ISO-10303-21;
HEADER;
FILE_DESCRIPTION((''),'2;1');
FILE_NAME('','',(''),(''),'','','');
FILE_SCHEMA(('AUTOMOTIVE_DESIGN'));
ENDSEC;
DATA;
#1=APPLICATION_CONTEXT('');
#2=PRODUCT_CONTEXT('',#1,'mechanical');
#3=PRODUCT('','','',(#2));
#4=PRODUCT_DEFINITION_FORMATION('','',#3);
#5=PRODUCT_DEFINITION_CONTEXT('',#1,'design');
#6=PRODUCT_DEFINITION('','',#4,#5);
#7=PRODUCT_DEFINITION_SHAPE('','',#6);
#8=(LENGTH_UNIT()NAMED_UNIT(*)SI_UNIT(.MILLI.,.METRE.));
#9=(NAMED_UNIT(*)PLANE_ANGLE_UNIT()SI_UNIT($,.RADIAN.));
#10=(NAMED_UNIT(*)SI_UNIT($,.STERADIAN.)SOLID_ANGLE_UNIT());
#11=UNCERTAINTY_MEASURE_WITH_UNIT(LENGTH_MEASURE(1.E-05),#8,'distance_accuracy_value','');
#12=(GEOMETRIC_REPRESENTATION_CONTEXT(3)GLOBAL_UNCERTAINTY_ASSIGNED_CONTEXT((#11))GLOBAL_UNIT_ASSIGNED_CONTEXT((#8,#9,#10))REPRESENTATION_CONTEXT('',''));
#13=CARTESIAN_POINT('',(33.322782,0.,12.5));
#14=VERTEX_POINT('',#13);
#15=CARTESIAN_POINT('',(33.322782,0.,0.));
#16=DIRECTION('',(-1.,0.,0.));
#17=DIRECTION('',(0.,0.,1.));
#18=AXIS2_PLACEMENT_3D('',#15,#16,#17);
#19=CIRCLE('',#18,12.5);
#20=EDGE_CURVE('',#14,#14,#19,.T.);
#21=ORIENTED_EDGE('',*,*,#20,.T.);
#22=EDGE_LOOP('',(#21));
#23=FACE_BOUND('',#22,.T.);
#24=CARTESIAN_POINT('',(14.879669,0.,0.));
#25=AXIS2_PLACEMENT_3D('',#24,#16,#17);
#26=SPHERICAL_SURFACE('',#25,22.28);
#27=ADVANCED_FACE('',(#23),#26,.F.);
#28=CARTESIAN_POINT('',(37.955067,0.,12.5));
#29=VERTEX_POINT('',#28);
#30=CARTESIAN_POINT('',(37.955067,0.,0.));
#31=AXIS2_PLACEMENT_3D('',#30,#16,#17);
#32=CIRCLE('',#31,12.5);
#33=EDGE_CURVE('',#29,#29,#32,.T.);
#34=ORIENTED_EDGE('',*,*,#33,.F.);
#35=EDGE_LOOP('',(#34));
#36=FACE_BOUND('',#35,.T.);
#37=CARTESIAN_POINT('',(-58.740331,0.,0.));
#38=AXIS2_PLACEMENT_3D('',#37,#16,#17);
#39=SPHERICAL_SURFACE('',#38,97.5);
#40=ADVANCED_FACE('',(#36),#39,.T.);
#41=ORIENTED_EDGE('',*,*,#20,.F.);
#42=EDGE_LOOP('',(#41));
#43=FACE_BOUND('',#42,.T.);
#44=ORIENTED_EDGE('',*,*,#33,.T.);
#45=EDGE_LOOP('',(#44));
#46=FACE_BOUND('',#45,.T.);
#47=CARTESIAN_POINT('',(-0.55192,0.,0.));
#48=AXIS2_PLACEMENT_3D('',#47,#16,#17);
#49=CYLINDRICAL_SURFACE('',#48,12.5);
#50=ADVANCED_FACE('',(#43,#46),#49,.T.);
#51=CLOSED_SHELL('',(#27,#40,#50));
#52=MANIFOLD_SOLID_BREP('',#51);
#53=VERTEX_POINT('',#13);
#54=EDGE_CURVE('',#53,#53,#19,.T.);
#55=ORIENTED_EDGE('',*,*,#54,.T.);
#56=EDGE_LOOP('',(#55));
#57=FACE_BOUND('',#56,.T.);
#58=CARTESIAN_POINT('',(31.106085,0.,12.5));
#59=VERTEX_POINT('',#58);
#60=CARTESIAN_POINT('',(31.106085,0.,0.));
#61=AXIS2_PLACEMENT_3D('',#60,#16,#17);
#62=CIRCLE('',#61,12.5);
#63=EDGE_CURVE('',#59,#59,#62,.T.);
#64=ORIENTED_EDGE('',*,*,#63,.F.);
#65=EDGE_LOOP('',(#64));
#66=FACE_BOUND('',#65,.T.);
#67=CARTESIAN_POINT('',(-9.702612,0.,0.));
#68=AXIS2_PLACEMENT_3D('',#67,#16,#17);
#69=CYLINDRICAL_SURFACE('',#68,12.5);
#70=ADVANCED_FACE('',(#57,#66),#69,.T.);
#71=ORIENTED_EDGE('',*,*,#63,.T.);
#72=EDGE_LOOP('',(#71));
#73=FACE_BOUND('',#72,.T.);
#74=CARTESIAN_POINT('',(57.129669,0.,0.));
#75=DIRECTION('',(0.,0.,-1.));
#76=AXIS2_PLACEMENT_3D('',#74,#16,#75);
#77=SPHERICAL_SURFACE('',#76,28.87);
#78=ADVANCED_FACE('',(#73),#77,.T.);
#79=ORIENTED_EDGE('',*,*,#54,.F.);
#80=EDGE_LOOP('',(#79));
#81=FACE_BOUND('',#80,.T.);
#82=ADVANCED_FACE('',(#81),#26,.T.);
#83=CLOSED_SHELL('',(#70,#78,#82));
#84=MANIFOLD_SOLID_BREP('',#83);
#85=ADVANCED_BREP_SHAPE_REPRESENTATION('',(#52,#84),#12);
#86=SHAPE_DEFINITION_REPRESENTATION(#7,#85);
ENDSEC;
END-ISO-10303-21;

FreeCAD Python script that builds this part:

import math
import FreeCAD as App
import Part
import Sketcher
from FreeCAD import Vector

doc = App.newDocument("Part")
params = doc.addObject("Spreadsheet::Sheet", "Params")
for row, (alias, value) in enumerate([
    ("sketch1_radius", "28.87 mm"),
    ("sketch1_radius2", "22.28 mm"),
    ("sketch1_width", "8.9 mm"),
    ("revolution_angle", "360 deg"),
    ("sketch2_radius", "97.5 mm"),
    ("sketch2_radius2", "22.28 mm"),
    ("sketch2_width", "1.6 mm"),
    ("revolution2_angle", "360 deg"),
], start=1):
    params.set(f"A{row}", alias)
    params.set(f"B{row}", "=" + value)
    params.setAlias(f"B{row}", alias)

body = doc.addObject("PartDesign::Body", "Body")

# Sketch on XZ plane
sketch1 = body.newObject("Sketcher::SketchObject", "Sketch")
sketch1.AttachmentSupport = (doc.getObject("XZ_Plane"), [""])
sketch1.MapMode = "FlatFace"
sketch1.addGeometry([
    Part.ArcOfCircle(Part.Circle(Vector(57.1, 0, 0), Vector(0, 0, 1), 28.9), math.radians(180), math.radians(206)),
    Part.LineSegment(Vector(28.3, 0, 0), Vector(37.2, 0, 0)),
    Part.ArcOfCircle(Part.Circle(Vector(14.9, 0, 0), Vector(0, 0, 1), 22.3), math.radians(-34), math.radians(0)),
    Part.LineSegment(Vector(33.3, -12.5, 0), Vector(31.1, -12.5, 0)),
], False)
sketch1.addConstraint([
    Sketcher.Constraint("Coincident", 0, 1, 1, 1),
    Sketcher.Constraint("Coincident", 1, 2, 2, 2),
    Sketcher.Constraint("Coincident", 2, 1, 3, 1),
    Sketcher.Constraint("Coincident", 3, 2, 0, 2),
    Sketcher.Constraint("Horizontal", 1),
    Sketcher.Constraint("Horizontal", 3),
    Sketcher.Constraint("PointOnObject", 0, 3, -1),
    Sketcher.Constraint("PointOnObject", 2, 3, -1),
    Sketcher.Constraint("PointOnObject", 0, 1, -1),
    Sketcher.Constraint("Radius", 0, 28.87),
    Sketcher.Constraint("Radius", 2, 22.28),
    Sketcher.Constraint("DistanceX", 1, 1, 1, 2, 8.9),
    Sketcher.Constraint("DistanceY", 2, 1, -1, 1, 12.5),
    Sketcher.Constraint("DistanceX", -1, 1, 0, 3, 57.129669),
])
sketch1.setExpression("Constraints[9]", "Params.sketch1_radius")
sketch1.setExpression("Constraints[10]", "Params.sketch1_radius2")
sketch1.setExpression("Constraints[11]", "Params.sketch1_width")
revolution = body.newObject("PartDesign::Revolution", "Revolution")
revolution.Profile = sketch1
revolution.ReferenceAxis = (sketch1, ["H_Axis"])
revolution.setExpression("Angle", "Params.revolution_angle")
body2 = doc.addObject("PartDesign::Body", "Body001")

# Sketch on XZ plane
sketch2 = body2.newObject("Sketcher::SketchObject", "Sketch001")
sketch2.AttachmentSupport = (doc.getObject("XZ_Plane001"), [""])
sketch2.MapMode = "FlatFace"
sketch2.addGeometry([
    Part.LineSegment(Vector(38, -12.5, 0), Vector(33.3, -12.5, 0)),
    Part.ArcOfCircle(Part.Circle(Vector(14.9, 0, 0), Vector(0, 0, 1), 22.3), math.radians(-34), math.radians(0)),
    Part.LineSegment(Vector(37.2, 0, 0), Vector(38.8, 0, 0)),
    Part.ArcOfCircle(Part.Circle(Vector(-58.7, 0, 0), Vector(0, 0, 1), 97.5), math.radians(-7.37), math.radians(0)),
], False)
sketch2.addConstraint([
    Sketcher.Constraint("Coincident", 0, 2, 1, 1),
    Sketcher.Constraint("Coincident", 1, 2, 2, 1),
    Sketcher.Constraint("Coincident", 2, 2, 3, 2),
    Sketcher.Constraint("Coincident", 3, 1, 0, 1),
    Sketcher.Constraint("Horizontal", 0),
    Sketcher.Constraint("Horizontal", 2),
    Sketcher.Constraint("PointOnObject", 1, 3, -1),
    Sketcher.Constraint("PointOnObject", 3, 3, -1),
    Sketcher.Constraint("PointOnObject", 1, 2, -1),
    Sketcher.Constraint("Radius", 3, 97.5),
    Sketcher.Constraint("Radius", 1, 22.28),
    Sketcher.Constraint("DistanceX", 2, 1, 2, 2, 1.6),
    Sketcher.Constraint("DistanceY", 0, 2, -1, 1, 12.5),
    Sketcher.Constraint("DistanceX", -1, 1, 1, 3, 14.879669),
])
sketch2.setExpression("Constraints[9]", "Params.sketch2_radius")
sketch2.setExpression("Constraints[10]", "Params.sketch2_radius2")
sketch2.setExpression("Constraints[11]", "Params.sketch2_width")
revolution2 = body2.newObject("PartDesign::Revolution", "Revolution001")
revolution2.Profile = sketch2
revolution2.ReferenceAxis = (sketch2, ["H_Axis"])
revolution2.setExpression("Angle", "Params.revolution2_angle")

doc.recompute()
